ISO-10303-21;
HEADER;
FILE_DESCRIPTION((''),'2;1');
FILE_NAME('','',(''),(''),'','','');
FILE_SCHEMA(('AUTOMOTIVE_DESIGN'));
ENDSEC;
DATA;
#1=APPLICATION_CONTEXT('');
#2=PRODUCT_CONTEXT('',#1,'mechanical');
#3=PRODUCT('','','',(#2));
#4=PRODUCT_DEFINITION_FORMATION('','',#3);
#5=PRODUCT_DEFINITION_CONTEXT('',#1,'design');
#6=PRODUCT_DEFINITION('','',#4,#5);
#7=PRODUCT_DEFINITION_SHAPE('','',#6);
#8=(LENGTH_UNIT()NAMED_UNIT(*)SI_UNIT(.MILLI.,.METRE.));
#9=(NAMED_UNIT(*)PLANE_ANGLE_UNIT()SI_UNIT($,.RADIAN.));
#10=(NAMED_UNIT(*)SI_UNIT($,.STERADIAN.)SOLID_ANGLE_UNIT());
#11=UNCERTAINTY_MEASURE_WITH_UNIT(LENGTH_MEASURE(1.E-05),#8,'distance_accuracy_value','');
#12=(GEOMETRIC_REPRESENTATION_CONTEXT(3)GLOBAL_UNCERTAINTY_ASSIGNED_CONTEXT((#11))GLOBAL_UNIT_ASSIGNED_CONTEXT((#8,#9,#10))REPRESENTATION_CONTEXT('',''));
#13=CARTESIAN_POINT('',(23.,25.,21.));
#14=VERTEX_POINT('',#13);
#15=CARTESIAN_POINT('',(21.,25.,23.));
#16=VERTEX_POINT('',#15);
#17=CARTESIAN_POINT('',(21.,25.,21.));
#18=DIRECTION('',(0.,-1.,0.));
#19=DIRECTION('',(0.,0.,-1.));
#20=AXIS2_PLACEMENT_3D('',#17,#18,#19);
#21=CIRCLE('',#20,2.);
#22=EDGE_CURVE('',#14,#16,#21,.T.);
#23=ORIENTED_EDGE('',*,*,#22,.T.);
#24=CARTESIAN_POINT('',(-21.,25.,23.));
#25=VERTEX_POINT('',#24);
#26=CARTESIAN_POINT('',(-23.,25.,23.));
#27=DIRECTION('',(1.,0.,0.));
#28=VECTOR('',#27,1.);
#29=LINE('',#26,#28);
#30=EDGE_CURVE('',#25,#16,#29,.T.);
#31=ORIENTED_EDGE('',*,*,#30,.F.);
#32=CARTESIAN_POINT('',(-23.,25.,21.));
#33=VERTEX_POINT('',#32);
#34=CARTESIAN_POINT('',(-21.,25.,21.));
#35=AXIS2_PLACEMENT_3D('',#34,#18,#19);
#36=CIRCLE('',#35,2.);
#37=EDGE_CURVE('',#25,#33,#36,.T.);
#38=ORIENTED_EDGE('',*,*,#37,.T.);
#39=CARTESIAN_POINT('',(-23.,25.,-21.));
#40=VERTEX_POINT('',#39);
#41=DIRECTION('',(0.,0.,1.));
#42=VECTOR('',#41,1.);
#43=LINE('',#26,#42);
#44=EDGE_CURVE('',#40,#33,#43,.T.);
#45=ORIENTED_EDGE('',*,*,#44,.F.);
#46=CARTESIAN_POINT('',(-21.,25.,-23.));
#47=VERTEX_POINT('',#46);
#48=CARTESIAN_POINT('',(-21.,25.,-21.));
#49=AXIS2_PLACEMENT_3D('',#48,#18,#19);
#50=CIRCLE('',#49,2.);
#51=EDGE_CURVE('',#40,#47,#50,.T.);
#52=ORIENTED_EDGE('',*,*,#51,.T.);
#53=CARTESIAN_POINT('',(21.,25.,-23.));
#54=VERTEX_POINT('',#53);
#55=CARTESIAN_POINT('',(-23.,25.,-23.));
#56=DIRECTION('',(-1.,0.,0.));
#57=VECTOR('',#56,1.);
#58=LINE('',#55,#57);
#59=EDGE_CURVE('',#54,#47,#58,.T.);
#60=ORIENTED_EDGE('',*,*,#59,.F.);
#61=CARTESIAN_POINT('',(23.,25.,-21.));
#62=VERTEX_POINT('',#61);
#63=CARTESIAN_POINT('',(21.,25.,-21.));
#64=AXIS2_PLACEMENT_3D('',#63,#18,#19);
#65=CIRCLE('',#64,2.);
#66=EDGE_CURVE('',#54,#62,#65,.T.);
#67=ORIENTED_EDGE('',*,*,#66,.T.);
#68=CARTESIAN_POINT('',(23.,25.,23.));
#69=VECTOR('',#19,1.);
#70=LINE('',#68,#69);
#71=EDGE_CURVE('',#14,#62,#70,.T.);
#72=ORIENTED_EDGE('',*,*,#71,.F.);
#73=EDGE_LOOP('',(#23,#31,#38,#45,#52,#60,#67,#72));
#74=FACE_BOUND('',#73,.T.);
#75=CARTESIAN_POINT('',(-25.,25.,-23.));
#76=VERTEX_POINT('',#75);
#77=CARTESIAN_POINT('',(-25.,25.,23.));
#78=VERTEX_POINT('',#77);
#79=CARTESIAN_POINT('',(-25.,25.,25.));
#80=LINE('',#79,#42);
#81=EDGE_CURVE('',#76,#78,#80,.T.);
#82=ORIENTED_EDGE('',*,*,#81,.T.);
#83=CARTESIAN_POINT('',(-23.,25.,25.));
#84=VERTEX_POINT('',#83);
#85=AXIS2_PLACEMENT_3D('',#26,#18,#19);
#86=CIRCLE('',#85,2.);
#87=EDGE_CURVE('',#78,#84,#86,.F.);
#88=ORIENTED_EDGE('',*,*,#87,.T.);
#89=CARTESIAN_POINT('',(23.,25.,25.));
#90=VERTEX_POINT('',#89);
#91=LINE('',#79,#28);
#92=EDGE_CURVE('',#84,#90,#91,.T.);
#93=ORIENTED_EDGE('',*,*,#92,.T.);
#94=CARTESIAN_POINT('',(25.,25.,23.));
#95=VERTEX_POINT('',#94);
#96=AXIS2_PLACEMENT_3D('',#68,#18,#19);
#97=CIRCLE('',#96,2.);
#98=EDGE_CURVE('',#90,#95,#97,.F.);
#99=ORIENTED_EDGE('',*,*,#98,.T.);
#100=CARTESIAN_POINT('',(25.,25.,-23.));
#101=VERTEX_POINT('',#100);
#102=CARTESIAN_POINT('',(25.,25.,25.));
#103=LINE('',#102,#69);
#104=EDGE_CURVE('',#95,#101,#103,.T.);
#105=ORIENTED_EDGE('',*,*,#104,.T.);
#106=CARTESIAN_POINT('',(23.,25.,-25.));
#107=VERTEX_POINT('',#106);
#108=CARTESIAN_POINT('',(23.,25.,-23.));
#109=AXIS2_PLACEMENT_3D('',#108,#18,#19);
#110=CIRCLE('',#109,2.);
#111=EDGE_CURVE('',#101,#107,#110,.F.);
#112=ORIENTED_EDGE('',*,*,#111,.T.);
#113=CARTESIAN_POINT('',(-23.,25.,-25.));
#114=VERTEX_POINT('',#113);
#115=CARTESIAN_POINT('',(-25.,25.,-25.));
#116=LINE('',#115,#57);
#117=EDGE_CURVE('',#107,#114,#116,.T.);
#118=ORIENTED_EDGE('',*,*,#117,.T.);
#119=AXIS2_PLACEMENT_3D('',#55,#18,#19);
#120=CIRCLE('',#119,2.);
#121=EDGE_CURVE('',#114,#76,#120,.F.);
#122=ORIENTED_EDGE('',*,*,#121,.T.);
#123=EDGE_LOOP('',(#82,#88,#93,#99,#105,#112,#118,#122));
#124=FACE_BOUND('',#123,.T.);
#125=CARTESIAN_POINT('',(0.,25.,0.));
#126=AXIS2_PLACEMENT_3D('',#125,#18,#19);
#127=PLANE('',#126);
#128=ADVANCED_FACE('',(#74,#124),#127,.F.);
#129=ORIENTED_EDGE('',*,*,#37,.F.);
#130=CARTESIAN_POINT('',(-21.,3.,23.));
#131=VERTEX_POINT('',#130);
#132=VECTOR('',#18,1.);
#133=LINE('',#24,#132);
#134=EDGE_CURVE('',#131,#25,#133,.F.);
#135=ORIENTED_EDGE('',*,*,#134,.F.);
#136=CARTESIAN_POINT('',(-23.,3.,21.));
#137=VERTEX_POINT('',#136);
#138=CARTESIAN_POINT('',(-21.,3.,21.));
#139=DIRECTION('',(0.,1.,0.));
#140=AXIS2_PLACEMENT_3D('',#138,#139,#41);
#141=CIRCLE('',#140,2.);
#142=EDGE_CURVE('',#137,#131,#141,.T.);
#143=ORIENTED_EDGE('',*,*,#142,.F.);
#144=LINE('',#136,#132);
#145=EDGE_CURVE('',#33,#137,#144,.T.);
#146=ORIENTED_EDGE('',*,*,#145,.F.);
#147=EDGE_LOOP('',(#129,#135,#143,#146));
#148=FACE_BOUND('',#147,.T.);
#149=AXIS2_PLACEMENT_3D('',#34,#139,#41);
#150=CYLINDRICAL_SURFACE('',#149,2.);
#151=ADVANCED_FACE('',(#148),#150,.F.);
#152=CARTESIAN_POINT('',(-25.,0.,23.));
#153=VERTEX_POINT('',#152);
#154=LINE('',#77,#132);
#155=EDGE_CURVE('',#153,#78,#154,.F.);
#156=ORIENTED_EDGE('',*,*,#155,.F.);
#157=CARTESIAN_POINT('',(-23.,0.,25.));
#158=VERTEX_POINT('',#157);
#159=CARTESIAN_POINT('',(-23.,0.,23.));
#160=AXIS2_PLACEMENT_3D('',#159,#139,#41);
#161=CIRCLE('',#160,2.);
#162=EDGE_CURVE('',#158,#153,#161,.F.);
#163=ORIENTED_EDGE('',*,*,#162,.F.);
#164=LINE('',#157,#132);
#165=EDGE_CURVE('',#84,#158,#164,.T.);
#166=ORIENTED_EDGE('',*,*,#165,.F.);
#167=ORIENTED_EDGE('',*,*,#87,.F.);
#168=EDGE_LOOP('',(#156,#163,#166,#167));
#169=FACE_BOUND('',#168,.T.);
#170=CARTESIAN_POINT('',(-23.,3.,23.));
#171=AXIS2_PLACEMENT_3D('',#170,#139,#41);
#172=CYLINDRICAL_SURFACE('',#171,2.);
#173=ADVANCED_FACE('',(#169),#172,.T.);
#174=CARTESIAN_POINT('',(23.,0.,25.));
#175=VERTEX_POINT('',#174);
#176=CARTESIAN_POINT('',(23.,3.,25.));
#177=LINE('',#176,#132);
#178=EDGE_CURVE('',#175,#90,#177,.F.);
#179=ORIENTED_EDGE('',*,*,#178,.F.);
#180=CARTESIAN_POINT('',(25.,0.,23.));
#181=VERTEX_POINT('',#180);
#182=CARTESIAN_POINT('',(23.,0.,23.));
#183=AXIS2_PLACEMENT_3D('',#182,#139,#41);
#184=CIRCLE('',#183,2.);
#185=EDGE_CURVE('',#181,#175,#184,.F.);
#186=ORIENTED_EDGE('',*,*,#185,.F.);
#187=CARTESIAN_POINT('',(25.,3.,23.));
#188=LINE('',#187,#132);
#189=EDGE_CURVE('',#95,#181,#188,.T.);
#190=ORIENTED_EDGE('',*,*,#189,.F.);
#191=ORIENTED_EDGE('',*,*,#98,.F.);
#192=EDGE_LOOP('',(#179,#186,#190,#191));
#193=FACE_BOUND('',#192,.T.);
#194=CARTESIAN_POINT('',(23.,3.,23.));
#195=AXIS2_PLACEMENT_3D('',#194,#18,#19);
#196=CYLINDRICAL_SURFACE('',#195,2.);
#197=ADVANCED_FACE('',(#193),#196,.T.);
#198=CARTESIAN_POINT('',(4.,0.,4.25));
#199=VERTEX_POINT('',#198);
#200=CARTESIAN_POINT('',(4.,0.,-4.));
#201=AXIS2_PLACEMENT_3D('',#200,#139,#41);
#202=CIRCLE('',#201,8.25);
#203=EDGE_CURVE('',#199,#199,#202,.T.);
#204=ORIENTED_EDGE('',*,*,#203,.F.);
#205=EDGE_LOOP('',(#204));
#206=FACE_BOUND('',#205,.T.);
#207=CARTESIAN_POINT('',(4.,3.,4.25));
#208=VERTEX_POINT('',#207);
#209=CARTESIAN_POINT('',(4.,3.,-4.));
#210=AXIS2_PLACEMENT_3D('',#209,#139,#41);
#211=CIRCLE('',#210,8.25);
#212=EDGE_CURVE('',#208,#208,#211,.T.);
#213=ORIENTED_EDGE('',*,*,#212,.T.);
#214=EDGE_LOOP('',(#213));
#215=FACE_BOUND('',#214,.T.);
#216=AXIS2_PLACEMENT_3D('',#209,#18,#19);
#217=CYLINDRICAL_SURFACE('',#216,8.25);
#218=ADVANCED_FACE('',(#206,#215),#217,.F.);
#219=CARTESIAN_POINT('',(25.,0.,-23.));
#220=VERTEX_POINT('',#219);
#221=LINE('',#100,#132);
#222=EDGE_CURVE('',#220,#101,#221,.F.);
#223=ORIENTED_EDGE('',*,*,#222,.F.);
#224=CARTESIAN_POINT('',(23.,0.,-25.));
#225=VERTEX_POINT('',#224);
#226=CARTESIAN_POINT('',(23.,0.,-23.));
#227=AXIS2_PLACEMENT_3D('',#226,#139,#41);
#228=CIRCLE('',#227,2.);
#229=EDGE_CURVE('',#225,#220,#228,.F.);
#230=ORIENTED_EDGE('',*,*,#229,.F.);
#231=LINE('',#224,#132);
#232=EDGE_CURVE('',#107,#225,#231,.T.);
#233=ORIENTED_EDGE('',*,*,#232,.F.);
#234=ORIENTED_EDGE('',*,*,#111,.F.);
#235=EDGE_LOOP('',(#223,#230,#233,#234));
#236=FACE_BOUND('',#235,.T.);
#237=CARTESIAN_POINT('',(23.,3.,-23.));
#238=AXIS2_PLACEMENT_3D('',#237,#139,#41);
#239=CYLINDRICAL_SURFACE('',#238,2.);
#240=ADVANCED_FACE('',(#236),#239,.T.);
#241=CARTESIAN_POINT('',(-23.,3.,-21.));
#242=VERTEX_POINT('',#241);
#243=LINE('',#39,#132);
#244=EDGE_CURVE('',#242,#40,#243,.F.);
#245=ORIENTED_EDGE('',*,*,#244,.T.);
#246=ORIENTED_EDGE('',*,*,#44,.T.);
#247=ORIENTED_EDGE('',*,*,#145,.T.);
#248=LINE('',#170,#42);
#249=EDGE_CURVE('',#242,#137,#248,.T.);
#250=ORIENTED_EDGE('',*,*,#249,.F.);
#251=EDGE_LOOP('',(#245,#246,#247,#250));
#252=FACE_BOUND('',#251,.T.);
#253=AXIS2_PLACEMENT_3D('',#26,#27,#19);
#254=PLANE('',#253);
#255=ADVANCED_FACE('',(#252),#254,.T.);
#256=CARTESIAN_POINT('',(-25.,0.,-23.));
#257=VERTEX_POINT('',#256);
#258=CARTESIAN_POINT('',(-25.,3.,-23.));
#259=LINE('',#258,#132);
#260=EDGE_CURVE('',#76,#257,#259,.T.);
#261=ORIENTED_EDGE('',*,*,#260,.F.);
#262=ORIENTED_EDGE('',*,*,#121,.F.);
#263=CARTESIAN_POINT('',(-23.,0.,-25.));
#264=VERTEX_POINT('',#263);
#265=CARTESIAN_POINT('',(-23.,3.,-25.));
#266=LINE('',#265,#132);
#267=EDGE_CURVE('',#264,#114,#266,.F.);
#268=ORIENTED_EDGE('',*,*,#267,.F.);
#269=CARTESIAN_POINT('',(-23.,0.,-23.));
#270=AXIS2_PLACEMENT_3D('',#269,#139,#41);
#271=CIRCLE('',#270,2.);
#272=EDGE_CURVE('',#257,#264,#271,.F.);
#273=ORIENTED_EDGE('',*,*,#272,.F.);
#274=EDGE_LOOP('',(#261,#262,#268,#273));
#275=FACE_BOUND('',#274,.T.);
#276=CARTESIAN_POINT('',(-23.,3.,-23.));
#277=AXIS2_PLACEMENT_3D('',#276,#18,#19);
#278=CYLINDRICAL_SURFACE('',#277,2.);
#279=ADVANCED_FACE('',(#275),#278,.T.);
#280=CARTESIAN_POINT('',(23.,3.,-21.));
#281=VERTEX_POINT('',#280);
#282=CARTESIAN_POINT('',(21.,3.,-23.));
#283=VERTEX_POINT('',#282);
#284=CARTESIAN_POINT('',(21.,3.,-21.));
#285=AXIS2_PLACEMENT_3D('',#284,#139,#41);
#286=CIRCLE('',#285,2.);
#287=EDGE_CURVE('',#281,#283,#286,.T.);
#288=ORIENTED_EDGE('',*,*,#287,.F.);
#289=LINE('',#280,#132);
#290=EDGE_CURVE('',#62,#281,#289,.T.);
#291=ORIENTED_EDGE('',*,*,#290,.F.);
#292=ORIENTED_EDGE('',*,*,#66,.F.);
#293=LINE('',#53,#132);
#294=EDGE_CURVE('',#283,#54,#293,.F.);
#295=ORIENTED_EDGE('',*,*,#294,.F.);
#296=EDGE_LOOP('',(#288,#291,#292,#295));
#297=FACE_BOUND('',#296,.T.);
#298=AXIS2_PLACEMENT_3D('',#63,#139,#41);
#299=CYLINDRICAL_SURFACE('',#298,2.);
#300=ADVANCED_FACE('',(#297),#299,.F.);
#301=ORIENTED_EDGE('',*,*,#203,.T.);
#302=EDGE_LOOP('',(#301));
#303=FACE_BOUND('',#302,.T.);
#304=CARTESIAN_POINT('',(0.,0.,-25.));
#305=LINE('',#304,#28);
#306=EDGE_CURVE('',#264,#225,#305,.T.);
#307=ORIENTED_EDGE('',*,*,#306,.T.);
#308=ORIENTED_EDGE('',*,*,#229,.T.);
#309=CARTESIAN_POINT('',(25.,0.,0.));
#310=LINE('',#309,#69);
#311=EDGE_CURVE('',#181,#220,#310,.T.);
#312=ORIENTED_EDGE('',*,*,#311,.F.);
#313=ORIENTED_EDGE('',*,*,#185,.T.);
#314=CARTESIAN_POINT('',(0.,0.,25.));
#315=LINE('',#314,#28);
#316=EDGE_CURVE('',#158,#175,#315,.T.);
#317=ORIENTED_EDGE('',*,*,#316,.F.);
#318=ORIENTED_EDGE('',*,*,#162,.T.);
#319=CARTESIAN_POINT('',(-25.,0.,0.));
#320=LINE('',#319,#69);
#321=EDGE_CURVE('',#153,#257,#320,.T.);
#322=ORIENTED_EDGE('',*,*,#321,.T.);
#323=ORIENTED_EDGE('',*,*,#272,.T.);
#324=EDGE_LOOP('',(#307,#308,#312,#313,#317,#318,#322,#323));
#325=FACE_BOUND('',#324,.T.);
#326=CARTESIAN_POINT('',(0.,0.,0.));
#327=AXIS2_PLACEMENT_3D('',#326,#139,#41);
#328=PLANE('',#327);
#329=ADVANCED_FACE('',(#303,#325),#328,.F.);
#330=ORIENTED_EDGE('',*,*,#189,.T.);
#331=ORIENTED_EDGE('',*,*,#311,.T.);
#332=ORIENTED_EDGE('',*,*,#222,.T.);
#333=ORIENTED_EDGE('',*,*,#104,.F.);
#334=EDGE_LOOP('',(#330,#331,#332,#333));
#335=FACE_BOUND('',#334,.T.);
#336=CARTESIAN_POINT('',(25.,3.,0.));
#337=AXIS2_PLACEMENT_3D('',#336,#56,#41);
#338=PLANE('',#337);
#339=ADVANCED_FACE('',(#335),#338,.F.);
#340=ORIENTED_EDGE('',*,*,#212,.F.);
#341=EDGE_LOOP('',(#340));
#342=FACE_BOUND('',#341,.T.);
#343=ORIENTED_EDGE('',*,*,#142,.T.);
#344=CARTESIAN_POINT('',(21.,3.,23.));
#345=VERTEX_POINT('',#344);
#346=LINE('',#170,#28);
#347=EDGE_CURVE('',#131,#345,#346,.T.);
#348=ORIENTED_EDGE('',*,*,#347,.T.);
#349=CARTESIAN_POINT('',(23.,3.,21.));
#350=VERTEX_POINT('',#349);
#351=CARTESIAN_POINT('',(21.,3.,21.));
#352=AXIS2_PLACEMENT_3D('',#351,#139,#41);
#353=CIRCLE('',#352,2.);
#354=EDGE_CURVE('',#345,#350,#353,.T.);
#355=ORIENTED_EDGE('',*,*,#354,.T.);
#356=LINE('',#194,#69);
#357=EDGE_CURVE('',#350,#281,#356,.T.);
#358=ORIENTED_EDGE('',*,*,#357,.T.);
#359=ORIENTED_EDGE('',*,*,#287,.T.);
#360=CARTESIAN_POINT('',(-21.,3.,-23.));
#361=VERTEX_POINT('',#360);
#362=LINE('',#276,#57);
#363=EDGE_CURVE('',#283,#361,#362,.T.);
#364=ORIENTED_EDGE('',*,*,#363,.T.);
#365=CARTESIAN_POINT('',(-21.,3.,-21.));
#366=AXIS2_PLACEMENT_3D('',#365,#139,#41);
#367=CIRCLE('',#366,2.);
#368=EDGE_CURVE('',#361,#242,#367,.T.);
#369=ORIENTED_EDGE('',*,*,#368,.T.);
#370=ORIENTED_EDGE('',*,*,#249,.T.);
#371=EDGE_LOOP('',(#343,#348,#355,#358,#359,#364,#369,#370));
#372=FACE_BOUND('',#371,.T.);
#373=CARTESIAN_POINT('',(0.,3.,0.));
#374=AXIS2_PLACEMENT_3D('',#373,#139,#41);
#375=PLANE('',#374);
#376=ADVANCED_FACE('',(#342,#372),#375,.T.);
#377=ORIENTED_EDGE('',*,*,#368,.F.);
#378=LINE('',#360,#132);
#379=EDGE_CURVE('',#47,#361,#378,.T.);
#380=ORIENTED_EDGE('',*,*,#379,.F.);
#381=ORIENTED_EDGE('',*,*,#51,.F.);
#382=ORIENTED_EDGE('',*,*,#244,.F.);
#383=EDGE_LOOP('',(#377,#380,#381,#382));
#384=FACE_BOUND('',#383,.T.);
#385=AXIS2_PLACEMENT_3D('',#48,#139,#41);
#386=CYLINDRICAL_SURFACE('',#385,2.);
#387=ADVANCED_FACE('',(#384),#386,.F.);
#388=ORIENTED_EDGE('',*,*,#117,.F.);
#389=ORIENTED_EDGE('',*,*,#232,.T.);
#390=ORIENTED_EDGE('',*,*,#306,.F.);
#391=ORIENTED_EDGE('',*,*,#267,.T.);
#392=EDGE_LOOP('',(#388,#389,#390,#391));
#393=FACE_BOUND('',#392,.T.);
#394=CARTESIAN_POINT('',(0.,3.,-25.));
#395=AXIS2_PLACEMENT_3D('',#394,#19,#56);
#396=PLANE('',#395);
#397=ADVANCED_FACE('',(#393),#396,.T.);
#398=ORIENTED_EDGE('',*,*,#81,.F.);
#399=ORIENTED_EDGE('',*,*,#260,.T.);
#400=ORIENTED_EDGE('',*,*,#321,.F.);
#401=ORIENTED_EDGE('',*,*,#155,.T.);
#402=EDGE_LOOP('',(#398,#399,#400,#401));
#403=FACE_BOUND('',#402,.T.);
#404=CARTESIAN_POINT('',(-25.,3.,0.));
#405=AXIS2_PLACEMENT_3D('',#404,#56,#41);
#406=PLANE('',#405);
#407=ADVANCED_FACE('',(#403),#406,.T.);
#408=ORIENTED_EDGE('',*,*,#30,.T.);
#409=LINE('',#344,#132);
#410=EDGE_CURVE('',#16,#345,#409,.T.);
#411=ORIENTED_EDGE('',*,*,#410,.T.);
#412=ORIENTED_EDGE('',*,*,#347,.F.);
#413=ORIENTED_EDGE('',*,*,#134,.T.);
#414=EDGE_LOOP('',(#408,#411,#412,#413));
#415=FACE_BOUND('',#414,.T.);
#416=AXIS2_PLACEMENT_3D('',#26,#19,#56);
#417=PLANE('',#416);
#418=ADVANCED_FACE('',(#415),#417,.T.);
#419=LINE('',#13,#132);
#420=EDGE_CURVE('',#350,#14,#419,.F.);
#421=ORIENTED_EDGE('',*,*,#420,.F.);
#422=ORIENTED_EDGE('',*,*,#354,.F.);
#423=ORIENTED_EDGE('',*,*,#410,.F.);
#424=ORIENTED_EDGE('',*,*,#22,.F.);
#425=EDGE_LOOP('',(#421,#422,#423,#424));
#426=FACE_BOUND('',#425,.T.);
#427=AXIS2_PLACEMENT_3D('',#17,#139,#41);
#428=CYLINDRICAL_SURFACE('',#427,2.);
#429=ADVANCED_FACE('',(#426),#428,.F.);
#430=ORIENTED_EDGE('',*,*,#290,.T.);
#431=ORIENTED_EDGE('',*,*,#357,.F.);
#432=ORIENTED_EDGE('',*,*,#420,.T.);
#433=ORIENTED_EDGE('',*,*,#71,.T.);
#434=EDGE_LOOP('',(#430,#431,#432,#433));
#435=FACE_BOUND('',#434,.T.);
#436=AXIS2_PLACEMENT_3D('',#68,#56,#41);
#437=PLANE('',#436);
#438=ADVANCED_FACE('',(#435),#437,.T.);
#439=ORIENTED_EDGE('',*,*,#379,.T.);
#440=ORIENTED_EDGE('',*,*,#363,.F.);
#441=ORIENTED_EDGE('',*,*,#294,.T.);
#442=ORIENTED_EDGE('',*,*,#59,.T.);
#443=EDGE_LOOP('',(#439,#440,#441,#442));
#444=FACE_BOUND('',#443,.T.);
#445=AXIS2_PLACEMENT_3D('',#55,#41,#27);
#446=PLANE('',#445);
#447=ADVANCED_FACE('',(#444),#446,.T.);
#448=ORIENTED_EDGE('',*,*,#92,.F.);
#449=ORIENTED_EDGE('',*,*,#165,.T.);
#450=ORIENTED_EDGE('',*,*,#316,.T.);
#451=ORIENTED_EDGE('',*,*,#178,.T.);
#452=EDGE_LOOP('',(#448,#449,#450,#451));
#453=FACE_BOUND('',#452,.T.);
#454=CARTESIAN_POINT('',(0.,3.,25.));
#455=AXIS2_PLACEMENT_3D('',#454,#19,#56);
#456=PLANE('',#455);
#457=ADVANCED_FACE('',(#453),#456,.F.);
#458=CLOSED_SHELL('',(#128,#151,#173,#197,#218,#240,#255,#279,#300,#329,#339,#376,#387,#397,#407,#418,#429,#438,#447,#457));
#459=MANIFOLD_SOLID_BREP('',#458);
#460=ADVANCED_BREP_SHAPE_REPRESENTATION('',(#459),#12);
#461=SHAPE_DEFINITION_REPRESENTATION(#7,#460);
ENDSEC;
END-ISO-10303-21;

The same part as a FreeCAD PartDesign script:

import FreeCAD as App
import Part
import Sketcher

V = App.Vector


def edges_at(feature, points):
    """Names of the edges that pass closest to the given points."""
    edges = feature.Shape.Edges
    near = lambda p: min(range(len(edges)), key=lambda i: edges[i].distToShape(Part.Vertex(*p))[0])
    return sorted({f"Edge{near(p) + 1}" for p in points})


def add_polygon(sketch, points):
    """Adds a closed chain of lines whose ends are joined by coincident constraints."""
    first, n = sketch.GeometryCount, len(points)
    for a, b in zip(points, points[1:] + points[:1]):
        sketch.addGeometry(Part.LineSegment(App.Vector(*a, 0), App.Vector(*b, 0)), False)
    for i in range(n):
        sketch.addConstraint(Sketcher.Constraint("Coincident", first + i, 2, first + (i + 1) % n, 1))

doc = App.newDocument("Part")
params = doc.addObject("Spreadsheet::Sheet", "Params")
for row, (alias, value) in enumerate([
    ("sketch1_diameter", "16.5 mm"),
    ("sketch1_width", "50 mm"),
    ("pad1_length", "3 mm"),
    ("sketch2_width", "50 mm"),
    ("sketch2_width2", "46 mm"),
    ("pad2_length", "22 mm"),
    ("fillet_radius", "2 mm"),
], start=1):
    params.set(f"A{row}", alias)
    params.set(f"B{row}", "=" + value)
    params.setAlias(f"B{row}", alias)

body = doc.addObject("PartDesign::Body", "Body")

# Sketch on XZ plane
sketch1 = body.newObject("Sketcher::SketchObject", "Sketch")
sketch1.AttachmentSupport = (doc.getObject("XZ_Plane"), [""])
sketch1.MapMode = "FlatFace"
add_polygon(sketch1, [(-25, -25), (-25, 25), (25, 25), (25, -25)])  # lines 0-3
sketch1.addGeometry(Part.Circle(V(4, -4, 0), V(0, 0, 1), 8), False)  # 4
sketch1.addConstraint(Sketcher.Constraint("Vertical", 0))
sketch1.addConstraint(Sketcher.Constraint("Horizontal", 1))
sketch1.addConstraint(Sketcher.Constraint("Vertical", 2))
sketch1.addConstraint(Sketcher.Constraint("Horizontal", 3))
sketch1.addConstraint(Sketcher.Constraint("Symmetric", 0, 2, 2, 2, -1, 1))
sketch1.addConstraint(Sketcher.Constraint("Equal", 3, 0))
sketch1.addConstraint(Sketcher.Constraint("Diameter", 4, 16.5))
sketch1.addConstraint(Sketcher.Constraint("DistanceX", 1, 1, 1, 2, 50.0))
sketch1.addConstraint(Sketcher.Constraint("DistanceX", -1, 1, 4, 3, 4.0))
sketch1.addConstraint(Sketcher.Constraint("DistanceY", 4, 3, -1, 1, 4.0))
sketch1.setExpression("Constraints[10]", "Params.sketch1_diameter")
sketch1.setExpression("Constraints[11]", "Params.sketch1_width")
pad1 = body.newObject("PartDesign::Pad", "Pad")
pad1.Profile = sketch1
pad1.setExpression("Length", "Params.pad1_length")
pad1.Reversed = True

# Sketch on XZ plane
sketch2 = body.newObject("Sketcher::SketchObject", "Sketch001")
sketch2.AttachmentSupport = (doc.getObject("XZ_Plane"), [""])
sketch2.MapMode = "FlatFace"
sketch2.AttachmentOffset = App.Placement(V(0, 0, -3), App.Rotation())
add_polygon(sketch2, [(-25, -25), (-25, 25), (25, 25), (25, -25)])  # lines 0-3
add_polygon(sketch2, [(23, 23), (-23, 23), (-23, -23), (23, -23)])  # lines 4-7
sketch2.addConstraint(Sketcher.Constraint("Vertical", 0))
sketch2.addConstraint(Sketcher.Constraint("Horizontal", 1))
sketch2.addConstraint(Sketcher.Constraint("Vertical", 2))
sketch2.addConstraint(Sketcher.Constraint("Horizontal", 3))
sketch2.addConstraint(Sketcher.Constraint("Horizontal", 4))
sketch2.addConstraint(Sketcher.Constraint("Vertical", 5))
sketch2.addConstraint(Sketcher.Constraint("Horizontal", 6))
sketch2.addConstraint(Sketcher.Constraint("Vertical", 7))
sketch2.addConstraint(Sketcher.Constraint("Symmetric", 0, 2, 2, 2, -1, 1))
sketch2.addConstraint(Sketcher.Constraint("Symmetric", 4, 2, 6, 2, -1, 1))
sketch2.addConstraint(Sketcher.Constraint("Equal", 3, 0))
sketch2.addConstraint(Sketcher.Constraint("Equal", 6, 5))
sketch2.addConstraint(Sketcher.Constraint("DistanceX", 1, 1, 1, 2, 50.0))
sketch2.addConstraint(Sketcher.Constraint("DistanceX", 4, 2, 4, 1, 46.0))
sketch2.setExpression("Constraints[20]", "Params.sketch2_width")
sketch2.setExpression("Constraints[21]", "Params.sketch2_width2")
pad2 = body.newObject("PartDesign::Pad", "Pad001")
pad2.Profile = sketch2
pad2.setExpression("Length", "Params.pad2_length")
pad2.Reversed = True
doc.recompute()

fillet = body.newObject("PartDesign::Fillet", "Fillet")
fillet.Base = (pad2, edges_at(pad2, [
    (-25, 12.5, 25),
    (-25, 12.5, -25),
    (25, 12.5, -25),
    (25, 12.5, 25),
    (23, 14, -23),
    (-23, 14, -23),
    (-23, 14, 23),
    (23, 14, 23),
]))
fillet.setExpression("Radius", "Params.fillet_radius")

doc.recompute()
